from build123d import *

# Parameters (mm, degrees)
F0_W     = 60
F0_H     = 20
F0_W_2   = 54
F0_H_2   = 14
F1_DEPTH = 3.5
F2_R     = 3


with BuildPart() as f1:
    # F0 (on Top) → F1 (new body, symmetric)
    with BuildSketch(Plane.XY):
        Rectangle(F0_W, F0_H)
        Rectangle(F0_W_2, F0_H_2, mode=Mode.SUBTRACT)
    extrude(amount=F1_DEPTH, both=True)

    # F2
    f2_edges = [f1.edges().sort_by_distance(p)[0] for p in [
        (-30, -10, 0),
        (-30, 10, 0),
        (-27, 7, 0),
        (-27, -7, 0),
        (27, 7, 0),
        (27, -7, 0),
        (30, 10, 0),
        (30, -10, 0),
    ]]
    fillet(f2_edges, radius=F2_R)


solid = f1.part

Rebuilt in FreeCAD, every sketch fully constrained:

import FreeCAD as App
import Part
import Sketcher

V = App.Vector


def edges_at(feature, points):
    """Names of the edges that pass closest to the given points."""
    edges = feature.Shape.Edges
    near = lambda p: min(range(len(edges)), key=lambda i: edges[i].distToShape(Part.Vertex(*p))[0])
    return sorted({f"Edge{near(p) + 1}" for p in points})

doc = App.newDocument("Part")
params = doc.addObject("Spreadsheet::Sheet", "Params")
for row, (alias, value) in enumerate([
    ("sketch1_width", "60 mm"),
    ("sketch1_width2", "54 mm"),
    ("sketch1_height", "20 mm"),
    ("sketch1_height2", "14 mm"),
    ("pad1_length", "7 mm"),
    ("fillet_radius", "3 mm"),
], start=1):
    params.set(f"A{row}", alias)
    params.set(f"B{row}", "=" + value)
    params.setAlias(f"B{row}", alias)

body = doc.addObject("PartDesign::Body", "Body")

# Sketch on XY plane
sketch1 = body.newObject("Sketcher::SketchObject", "Sketch")
sketch1.AttachmentSupport = (doc.getObject("XY_Plane"), [""])
sketch1.MapMode = "FlatFace"
sketch1.addGeometry(Part.LineSegment(V(-30, 10, 0), V(-30, -10, 0)), False)
sketch1.addGeometry(Part.LineSegment(V(-30, -10, 0), V(30, -10, 0)), False)
sketch1.addGeometry(Part.LineSegment(V(30, -10, 0), V(30, 10, 0)), False)
sketch1.addGeometry(Part.LineSegment(V(30, 10, 0), V(-30, 10, 0)), False)
sketch1.addGeometry(Part.LineSegment(V(27, -7, 0), V(-27, -7, 0)), False)
sketch1.addGeometry(Part.LineSegment(V(-27, -7, 0), V(-27, 7, 0)), False)
sketch1.addGeometry(Part.LineSegment(V(-27, 7, 0), V(27, 7, 0)), False)
sketch1.addGeometry(Part.LineSegment(V(27, 7, 0), V(27, -7, 0)), False)
sketch1.addConstraint(Sketcher.Constraint("Coincident", 0, 2, 1, 1))
sketch1.addConstraint(Sketcher.Constraint("Coincident", 1, 2, 2, 1))
sketch1.addConstraint(Sketcher.Constraint("Coincident", 2, 2, 3, 1))
sketch1.addConstraint(Sketcher.Constraint("Coincident", 3, 2, 0, 1))
sketch1.addConstraint(Sketcher.Constraint("Coincident", 4, 2, 5, 1))
sketch1.addConstraint(Sketcher.Constraint("Coincident", 5, 2, 6, 1))
sketch1.addConstraint(Sketcher.Constraint("Coincident", 6, 2, 7, 1))
sketch1.addConstraint(Sketcher.Constraint("Coincident", 7, 2, 4, 1))
sketch1.addConstraint(Sketcher.Constraint("Vertical", 0))
sketch1.addConstraint(Sketcher.Constraint("Horizontal", 1))
sketch1.addConstraint(Sketcher.Constraint("Vertical", 2))
sketch1.addConstraint(Sketcher.Constraint("Horizontal", 3))
sketch1.addConstraint(Sketcher.Constraint("Horizontal", 4))
sketch1.addConstraint(Sketcher.Constraint("Vertical", 5))
sketch1.addConstraint(Sketcher.Constraint("Horizontal", 6))
sketch1.addConstraint(Sketcher.Constraint("Vertical", 7))
sketch1.addConstraint(Sketcher.Constraint("Symmetric", 0, 2, 2, 2, -1, 1))
sketch1.addConstraint(Sketcher.Constraint("Symmetric", 4, 2, 6, 2, -1, 1))
sketch1.addConstraint(Sketcher.Constraint("DistanceX", 1, 1, 1, 2, 60.0))
sketch1.addConstraint(Sketcher.Constraint("DistanceX", 4, 2, 4, 1, 54.0))
sketch1.addConstraint(Sketcher.Constraint("DistanceY", 0, 2, 0, 1, 20.0))
sketch1.addConstraint(Sketcher.Constraint("DistanceY", 5, 1, 5, 2, 14.0))
sketch1.setExpression("Constraints[18]", "Params.sketch1_width")
sketch1.setExpression("Constraints[19]", "Params.sketch1_width2")
sketch1.setExpression("Constraints[20]", "Params.sketch1_height")
sketch1.setExpression("Constraints[21]", "Params.sketch1_height2")
pad1 = body.newObject("PartDesign::Pad", "Pad")
pad1.Profile = sketch1
pad1.setExpression("Length", "Params.pad1_length")
pad1.Midplane = True
doc.recompute()

fillet = body.newObject("PartDesign::Fillet", "Fillet")
fillet.Base = (pad1, edges_at(pad1, [
    (-30, -10, 0),
    (-30, 10, 0),
    (-27, 7, 0),
    (-27, -7, 0),
    (27, 7, 0),
    (27, -7, 0),
    (30, 10, 0),
    (30, -10, 0),
]))
fillet.setExpression("Radius", "Params.fillet_radius")

doc.recompute()
